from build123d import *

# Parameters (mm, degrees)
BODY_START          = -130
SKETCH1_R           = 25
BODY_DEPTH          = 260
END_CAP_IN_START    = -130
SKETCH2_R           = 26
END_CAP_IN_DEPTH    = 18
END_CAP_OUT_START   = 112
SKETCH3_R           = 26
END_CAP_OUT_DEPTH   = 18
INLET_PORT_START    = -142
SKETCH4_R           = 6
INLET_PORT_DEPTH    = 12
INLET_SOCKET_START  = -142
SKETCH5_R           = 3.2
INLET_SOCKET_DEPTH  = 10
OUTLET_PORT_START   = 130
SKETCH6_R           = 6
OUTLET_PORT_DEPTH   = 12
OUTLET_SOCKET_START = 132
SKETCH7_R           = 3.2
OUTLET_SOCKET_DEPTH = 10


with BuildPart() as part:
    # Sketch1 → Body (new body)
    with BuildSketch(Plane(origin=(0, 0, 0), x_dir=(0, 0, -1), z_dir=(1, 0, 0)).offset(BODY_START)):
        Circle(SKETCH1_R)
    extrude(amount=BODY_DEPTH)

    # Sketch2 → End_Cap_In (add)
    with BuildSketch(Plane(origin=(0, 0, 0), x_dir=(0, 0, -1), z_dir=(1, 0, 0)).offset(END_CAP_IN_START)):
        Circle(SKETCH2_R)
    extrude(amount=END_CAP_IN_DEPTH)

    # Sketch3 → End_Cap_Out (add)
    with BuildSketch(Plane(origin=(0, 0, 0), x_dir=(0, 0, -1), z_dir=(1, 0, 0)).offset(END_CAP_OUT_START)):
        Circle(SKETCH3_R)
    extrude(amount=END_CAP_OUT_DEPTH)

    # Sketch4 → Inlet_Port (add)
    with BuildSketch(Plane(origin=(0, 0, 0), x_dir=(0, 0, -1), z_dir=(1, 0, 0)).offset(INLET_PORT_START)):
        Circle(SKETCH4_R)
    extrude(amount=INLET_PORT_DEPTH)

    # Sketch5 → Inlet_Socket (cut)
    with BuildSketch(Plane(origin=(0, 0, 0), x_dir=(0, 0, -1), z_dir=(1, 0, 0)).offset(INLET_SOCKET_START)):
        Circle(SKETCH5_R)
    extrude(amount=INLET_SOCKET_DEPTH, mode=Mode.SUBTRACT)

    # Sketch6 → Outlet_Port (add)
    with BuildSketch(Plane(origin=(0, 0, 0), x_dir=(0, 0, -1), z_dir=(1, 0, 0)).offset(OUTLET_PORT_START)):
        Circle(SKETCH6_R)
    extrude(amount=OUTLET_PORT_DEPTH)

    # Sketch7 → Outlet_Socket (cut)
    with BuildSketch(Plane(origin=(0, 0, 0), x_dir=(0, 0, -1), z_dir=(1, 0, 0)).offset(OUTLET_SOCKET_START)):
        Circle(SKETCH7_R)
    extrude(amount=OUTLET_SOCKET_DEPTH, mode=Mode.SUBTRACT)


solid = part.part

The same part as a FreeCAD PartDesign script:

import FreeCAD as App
import Part
import Sketcher
from FreeCAD import Vector
Q = App.Units.Quantity

doc = App.newDocument("Part")
body = doc.addObject("PartDesign::Body", "Body")

# Sketch on YZ plane
sketch1 = body.newObject("Sketcher::SketchObject", "Sketch")
sketch1.AttachmentSupport = (doc.getObject("YZ_Plane"), [""])
sketch1.MapMode = "FlatFace"
sketch1.AttachmentOffset = App.Placement(Vector(0, 0, -130), App.Rotation())
sketch1.addGeometry(Part.Circle(Vector(0, 0, 0), Vector(0, 0, 1), 25), False)
sketch1.addConstraint([
    Sketcher.Constraint("Coincident", 0, 3, -1, 1),
    Sketcher.Constraint("Diameter", 0, Q("50 mm")),
])
pad1 = body.newObject("PartDesign::Pad", "Pad")
pad1.Profile = sketch1
pad1.Length = 260

# Sketch on YZ plane
sketch2 = body.newObject("Sketcher::SketchObject", "Sketch001")
sketch2.AttachmentSupport = (doc.getObject("YZ_Plane"), [""])
sketch2.MapMode = "FlatFace"
sketch2.AttachmentOffset = App.Placement(Vector(0, 0, -130), App.Rotation())
sketch2.addGeometry(Part.Circle(Vector(0, 0, 0), Vector(0, 0, 1), 26), False)
sketch2.addConstraint([
    Sketcher.Constraint("Coincident", 0, 3, -1, 1),
    Sketcher.Constraint("Diameter", 0, Q("52 mm")),
])
pad2 = body.newObject("PartDesign::Pad", "Pad001")
pad2.Profile = sketch2
pad2.Length = 18

# Sketch on YZ plane
sketch3 = body.newObject("Sketcher::SketchObject", "Sketch002")
sketch3.AttachmentSupport = (doc.getObject("YZ_Plane"), [""])
sketch3.MapMode = "FlatFace"
sketch3.AttachmentOffset = App.Placement(Vector(0, 0, 112), App.Rotation())
sketch3.addGeometry(Part.Circle(Vector(0, 0, 0), Vector(0, 0, 1), 26), False)
sketch3.addConstraint([
    Sketcher.Constraint("Coincident", 0, 3, -1, 1),
    Sketcher.Constraint("Diameter", 0, Q("52 mm")),
])
pad3 = body.newObject("PartDesign::Pad", "Pad002")
pad3.Profile = sketch3
pad3.Length = 18

# Sketch on YZ plane
sketch4 = body.newObject("Sketcher::SketchObject", "Sketch003")
sketch4.AttachmentSupport = (doc.getObject("YZ_Plane"), [""])
sketch4.MapMode = "FlatFace"
sketch4.AttachmentOffset = App.Placement(Vector(0, 0, -142), App.Rotation())
sketch4.addGeometry(Part.Circle(Vector(0, 0, 0), Vector(0, 0, 1), 6), False)
sketch4.addConstraint([
    Sketcher.Constraint("Coincident", 0, 3, -1, 1),
    Sketcher.Constraint("Diameter", 0, Q("12 mm")),
])
pad4 = body.newObject("PartDesign::Pad", "Pad003")
pad4.Profile = sketch4
pad4.Length = 12

# Sketch on YZ plane
sketch5 = body.newObject("Sketcher::SketchObject", "Sketch004")
sketch5.AttachmentSupport = (doc.getObject("YZ_Plane"), [""])
sketch5.MapMode = "FlatFace"
sketch5.AttachmentOffset = App.Placement(Vector(0, 0, -142), App.Rotation())
sketch5.addGeometry(Part.Circle(Vector(0, 0, 0), Vector(0, 0, 1), 3.2), False)
sketch5.addConstraint([
    Sketcher.Constraint("Coincident", 0, 3, -1, 1),
    Sketcher.Constraint("Diameter", 0, Q("6.4 mm")),
])
pocket1 = body.newObject("PartDesign::Pocket", "Pocket")
pocket1.Profile = sketch5
pocket1.Length = 10
pocket1.Reversed = True

# Sketch on YZ plane
sketch6 = body.newObject("Sketcher::SketchObject", "Sketch005")
sketch6.AttachmentSupport = (doc.getObject("YZ_Plane"), [""])
sketch6.MapMode = "FlatFace"
sketch6.AttachmentOffset = App.Placement(Vector(0, 0, 130), App.Rotation())
sketch6.addGeometry(Part.Circle(Vector(0, 0, 0), Vector(0, 0, 1), 6), False)
sketch6.addConstraint([
    Sketcher.Constraint("Coincident", 0, 3, -1, 1),
    Sketcher.Constraint("Diameter", 0, Q("12 mm")),
])
pad5 = body.newObject("PartDesign::Pad", "Pad004")
pad5.Profile = sketch6
pad5.Length = 12

# Sketch on YZ plane
sketch7 = body.newObject("Sketcher::SketchObject", "Sketch006")
sketch7.AttachmentSupport = (doc.getObject("YZ_Plane"), [""])
sketch7.MapMode = "FlatFace"
sketch7.AttachmentOffset = App.Placement(Vector(0, 0, 132), App.Rotation())
sketch7.addGeometry(Part.Circle(Vector(0, 0, 0), Vector(0, 0, 1), 3.2), False)
sketch7.addConstraint([
    Sketcher.Constraint("Coincident", 0, 3, -1, 1),
    Sketcher.Constraint("Diameter", 0, Q("6.4 mm")),
])
pocket2 = body.newObject("PartDesign::Pocket", "Pocket001")
pocket2.Profile = sketch7
pocket2.Length = 10
pocket2.Reversed = True

doc.recompute()
